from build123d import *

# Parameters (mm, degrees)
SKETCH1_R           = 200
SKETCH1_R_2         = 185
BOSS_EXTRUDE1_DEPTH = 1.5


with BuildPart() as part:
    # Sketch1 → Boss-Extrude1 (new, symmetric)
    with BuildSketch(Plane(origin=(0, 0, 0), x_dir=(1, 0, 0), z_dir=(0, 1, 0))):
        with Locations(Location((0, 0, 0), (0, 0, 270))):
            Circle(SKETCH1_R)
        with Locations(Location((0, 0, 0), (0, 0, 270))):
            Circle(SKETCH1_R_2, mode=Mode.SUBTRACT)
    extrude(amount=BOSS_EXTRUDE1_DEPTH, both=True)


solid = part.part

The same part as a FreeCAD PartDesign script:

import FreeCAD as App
import Part
import Sketcher

V = App.Vector
Q = App.Units.Quantity

doc = App.newDocument("Part")
body = doc.addObject("PartDesign::Body", "Body")

# Sketch on XZ plane
sketch1 = body.newObject("Sketcher::SketchObject", "Sketch")
sketch1.AttachmentSupport = (doc.getObject("XZ_Plane"), [""])
sketch1.MapMode = "FlatFace"
sketch1.addGeometry(Part.Circle(V(0, 0, 0), V(0, 0, 1), 200), False)
sketch1.addGeometry(Part.Circle(V(0, 0, 0), V(0, 0, 1), 185), False)
sketch1.addConstraint(Sketcher.Constraint("Coincident", 0, 3, -1, 1))
sketch1.addConstraint(Sketcher.Constraint("Coincident", 1, 3, -1, 1))
sketch1.addConstraint(Sketcher.Constraint("Diameter", 0, Q("400 mm")))
sketch1.addConstraint(Sketcher.Constraint("Diameter", 1, Q("370 mm")))
pad1 = body.newObject("PartDesign::Pad", "Pad")
pad1.Profile = sketch1
pad1.Length = 3
pad1.Midplane = True

doc.recompute()
